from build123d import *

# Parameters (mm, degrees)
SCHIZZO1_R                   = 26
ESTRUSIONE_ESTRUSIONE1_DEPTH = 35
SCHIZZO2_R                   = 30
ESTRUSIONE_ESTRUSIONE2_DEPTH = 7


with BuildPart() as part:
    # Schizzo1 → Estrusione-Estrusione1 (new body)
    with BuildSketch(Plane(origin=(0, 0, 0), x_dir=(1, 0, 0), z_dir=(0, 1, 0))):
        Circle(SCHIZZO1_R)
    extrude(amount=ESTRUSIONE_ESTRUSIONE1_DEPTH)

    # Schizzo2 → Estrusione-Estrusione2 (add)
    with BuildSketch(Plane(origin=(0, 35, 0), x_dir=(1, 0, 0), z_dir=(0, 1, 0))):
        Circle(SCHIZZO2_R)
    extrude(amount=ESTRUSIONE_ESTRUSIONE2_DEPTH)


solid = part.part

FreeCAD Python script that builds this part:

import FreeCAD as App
import Part
import Sketcher

V = App.Vector

doc = App.newDocument("Part")
body = doc.addObject("PartDesign::Body", "Body")

sketch1 = body.newObject("Sketcher::SketchObject", "Sketch")
sketch1.AttachmentSupport = (doc.getObject("XZ_Plane"), [""])
sketch1.MapMode = "FlatFace"
sketch1.addGeometry(Part.Circle(V(0, 0, 0), V(0, 0, 1), 26), False)
sketch1.addConstraint(Sketcher.Constraint("Coincident", 0, 3, -1, 1))
sketch1.addConstraint(Sketcher.Constraint("Diameter", 0, 52.0))
pad1 = body.newObject("PartDesign::Pad", "Pad")
pad1.Profile = sketch1
pad1.Length = 35
pad1.Reversed = True

sketch2 = body.newObject("Sketcher::SketchObject", "Sketch001")
sketch2.AttachmentSupport = (doc.getObject("XZ_Plane"), [""])
sketch2.MapMode = "FlatFace"
sketch2.AttachmentOffset = App.Placement(V(0, 0, -35), App.Rotation())
sketch2.addGeometry(Part.Circle(V(0, 0, 0), V(0, 0, 1), 30), False)
sketch2.addConstraint(Sketcher.Constraint("Coincident", 0, 3, -1, 1))
sketch2.addConstraint(Sketcher.Constraint("Diameter", 0, 60.0))
pad2 = body.newObject("PartDesign::Pad", "Pad001")
pad2.Profile = sketch2
pad2.Length = 7
pad2.Reversed = True

doc.recompute()
